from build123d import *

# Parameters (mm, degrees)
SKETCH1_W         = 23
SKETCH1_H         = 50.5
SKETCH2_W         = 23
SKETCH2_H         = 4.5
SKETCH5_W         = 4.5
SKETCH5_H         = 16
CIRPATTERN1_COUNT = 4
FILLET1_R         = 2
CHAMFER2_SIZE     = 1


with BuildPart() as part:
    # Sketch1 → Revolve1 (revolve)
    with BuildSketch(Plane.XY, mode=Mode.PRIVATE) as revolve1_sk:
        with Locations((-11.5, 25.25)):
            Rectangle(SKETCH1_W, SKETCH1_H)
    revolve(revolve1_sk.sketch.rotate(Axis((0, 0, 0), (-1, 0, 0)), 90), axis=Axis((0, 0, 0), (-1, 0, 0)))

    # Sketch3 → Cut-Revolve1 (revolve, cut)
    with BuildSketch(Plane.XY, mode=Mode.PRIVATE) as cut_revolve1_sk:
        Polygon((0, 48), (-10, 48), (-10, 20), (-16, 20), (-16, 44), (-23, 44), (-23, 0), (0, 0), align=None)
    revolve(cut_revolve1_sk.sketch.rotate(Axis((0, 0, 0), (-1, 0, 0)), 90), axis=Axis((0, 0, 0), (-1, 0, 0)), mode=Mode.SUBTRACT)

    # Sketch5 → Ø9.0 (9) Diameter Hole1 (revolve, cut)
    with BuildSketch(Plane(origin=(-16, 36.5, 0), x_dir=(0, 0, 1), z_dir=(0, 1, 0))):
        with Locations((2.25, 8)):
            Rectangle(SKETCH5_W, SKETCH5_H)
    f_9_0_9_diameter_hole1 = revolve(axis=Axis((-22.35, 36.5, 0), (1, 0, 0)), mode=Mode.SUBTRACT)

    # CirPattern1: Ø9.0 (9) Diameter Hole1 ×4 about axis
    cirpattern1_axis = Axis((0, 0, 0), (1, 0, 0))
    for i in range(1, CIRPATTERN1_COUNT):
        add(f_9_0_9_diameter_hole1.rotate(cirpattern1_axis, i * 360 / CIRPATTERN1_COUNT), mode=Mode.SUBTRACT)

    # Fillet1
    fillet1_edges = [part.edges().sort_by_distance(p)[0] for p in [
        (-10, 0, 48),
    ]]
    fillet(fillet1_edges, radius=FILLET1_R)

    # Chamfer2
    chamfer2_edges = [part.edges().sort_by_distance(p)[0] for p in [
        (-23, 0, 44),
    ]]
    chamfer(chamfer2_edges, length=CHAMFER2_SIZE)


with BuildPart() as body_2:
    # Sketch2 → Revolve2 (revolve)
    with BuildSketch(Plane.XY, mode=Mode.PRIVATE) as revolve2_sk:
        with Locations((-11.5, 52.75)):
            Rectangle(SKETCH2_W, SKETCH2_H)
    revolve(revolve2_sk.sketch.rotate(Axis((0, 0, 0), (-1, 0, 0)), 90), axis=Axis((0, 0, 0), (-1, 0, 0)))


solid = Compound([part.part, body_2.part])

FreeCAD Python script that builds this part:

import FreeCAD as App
import Part
import Sketcher


def edges_at(feature, points):
    """Names of the edges that pass closest to the given points."""
    edges = feature.Shape.Edges
    near = lambda p: min(range(len(edges)), key=lambda i: edges[i].distToShape(Part.Vertex(*p))[0])
    return sorted({f"Edge{near(p) + 1}" for p in points})

doc = App.newDocument("Part")
body = doc.addObject("PartDesign::Body", "Body")

sketch1 = doc.addObject("Sketcher::SketchObject", "Sketch")
body.addObject(sketch1)
sketch1.AttachmentSupport = (doc.XY_Plane, [""])
sketch1.MapMode = "FlatFace"
sketch1.addGeometry([
    Part.LineSegment(App.Vector(-23, 50, 0), App.Vector(-23, 0, 0)),
    Part.LineSegment(App.Vector(-23, 0, 0), App.Vector(0, 0, 0)),
    Part.LineSegment(App.Vector(0, 0, 0), App.Vector(0, 50, 0)),
    Part.LineSegment(App.Vector(0, 50, 0), App.Vector(-23, 50, 0)),
], False)
sketch1.addConstraint([
    Sketcher.Constraint("Coincident", 0, 2, 1, 1),
    Sketcher.Constraint("Coincident", 1, 2, 2, 1),
    Sketcher.Constraint("Coincident", 2, 2, 3, 1),
    Sketcher.Constraint("Coincident", 3, 2, 0, 1),
    Sketcher.Constraint("Vertical", 0),
    Sketcher.Constraint("Horizontal", 1),
    Sketcher.Constraint("Vertical", 2),
    Sketcher.Constraint("Horizontal", 3),
    Sketcher.Constraint("Coincident", 1, 2, -1, 1),
    Sketcher.Constraint("DistanceX", 1, 1, 1, 2, 23.0),
    Sketcher.Constraint("DistanceY", 0, 2, 0, 1, 50.5),
])
revolution = doc.addObject("PartDesign::Revolution", "Revolution")
body.addObject(revolution)
revolution.Profile = sketch1
revolution.ReferenceAxis = (sketch1, ["H_Axis"])
revolution.Angle = 360

sketch2 = doc.addObject("Sketcher::SketchObject", "Sketch001")
body.addObject(sketch2)
sketch2.AttachmentSupport = (doc.XY_Plane, [""])
sketch2.MapMode = "FlatFace"
sketch2.addGeometry([
    Part.LineSegment(App.Vector(0, 48, 0), App.Vector(-10, 48, 0)),
    Part.LineSegment(App.Vector(-10, 48, 0), App.Vector(-10, 20, 0)),
    Part.LineSegment(App.Vector(-10, 20, 0), App.Vector(-16, 20, 0)),
    Part.LineSegment(App.Vector(-16, 20, 0), App.Vector(-16, 44, 0)),
    Part.LineSegment(App.Vector(-16, 44, 0), App.Vector(-23, 44, 0)),
    Part.LineSegment(App.Vector(-23, 44, 0), App.Vector(-23, 0, 0)),
    Part.LineSegment(App.Vector(-23, 0, 0), App.Vector(0, 0, 0)),
    Part.LineSegment(App.Vector(0, 0, 0), App.Vector(0, 48, 0)),
], False)
sketch2.addConstraint([
    Sketcher.Constraint("Coincident", 0, 2, 1, 1),
    Sketcher.Constraint("Coincident", 1, 2, 2, 1),
    Sketcher.Constraint("Coincident", 2, 2, 3, 1),
    Sketcher.Constraint("Coincident", 3, 2, 4, 1),
    Sketcher.Constraint("Coincident", 4, 2, 5, 1),
    Sketcher.Constraint("Coincident", 5, 2, 6, 1),
    Sketcher.Constraint("Coincident", 6, 2, 7, 1),
    Sketcher.Constraint("Coincident", 7, 2, 0, 1),
    Sketcher.Constraint("Horizontal", 0),
    Sketcher.Constraint("Vertical", 1),
    Sketcher.Constraint("Horizontal", 2),
    Sketcher.Constraint("Vertical", 3),
    Sketcher.Constraint("Horizontal", 4),
    Sketcher.Constraint("Vertical", 5),
    Sketcher.Constraint("Horizontal", 6),
    Sketcher.Constraint("Vertical", 7),
    Sketcher.Constraint("Coincident", 6, 2, -1, 1),
    Sketcher.Constraint("DistanceX", 0, 2, 0, 1, 10.0),
    Sketcher.Constraint("DistanceX", 2, 2, 2, 1, 6.0),
    Sketcher.Constraint("DistanceX", 4, 2, 4, 1, 7.0),
    Sketcher.Constraint("DistanceY", 1, 2, 1, 1, 28.0),
    Sketcher.Constraint("DistanceY", 3, 1, 3, 2, 24.0),
    Sketcher.Constraint("DistanceY", 5, 2, 5, 1, 44.0),
])
groove = doc.addObject("PartDesign::Groove", "Groove")
body.addObject(groove)
groove.Profile = sketch2
groove.ReferenceAxis = (sketch2, ["H_Axis"])
groove.Angle = 360

sketch3 = doc.addObject("Sketcher::SketchObject", "Sketch002")
body.addObject(sketch3)
sketch3.AttachmentSupport = (doc.XZ_Plane, [""])
sketch3.MapMode = "FlatFace"
sketch3.AttachmentOffset = App.Placement(App.Vector(0, 0, -36.5), App.Rotation())
sketch3.addGeometry([
    Part.LineSegment(App.Vector(0, 0, 0), App.Vector(-16, 0, 0)),
    Part.LineSegment(App.Vector(-16, 0, 0), App.Vector(-16, 4.5, 0)),
    Part.LineSegment(App.Vector(-16, 4.5, 0), App.Vector(0, 4.5, 0)),
    Part.LineSegment(App.Vector(0, 4.5, 0), App.Vector(0, 0, 0)),
], False)
sketch3.addConstraint([
    Sketcher.Constraint("Coincident", 0, 2, 1, 1),
    Sketcher.Constraint("Coincident", 1, 2, 2, 1),
    Sketcher.Constraint("Coincident", 2, 2, 3, 1),
    Sketcher.Constraint("Coincident", 3, 2, 0, 1),
    Sketcher.Constraint("Horizontal", 0),
    Sketcher.Constraint("Vertical", 1),
    Sketcher.Constraint("Horizontal", 2),
    Sketcher.Constraint("Vertical", 3),
    Sketcher.Constraint("Coincident", 3, 2, -1, 1),
    Sketcher.Constraint("DistanceX", 0, 2, 0, 1, 16.0),
    Sketcher.Constraint("DistanceY", 1, 1, 1, 2, 4.5),
])
groove2 = doc.addObject("PartDesign::Groove", "Groove001")
body.addObject(groove2)
groove2.Profile = sketch3
groove2.ReferenceAxis = (sketch3, ["H_Axis"])
groove2.Angle = 360
doc.recompute()

polarpattern = doc.addObject("PartDesign::PolarPattern", "PolarPattern")
body.addObject(polarpattern)
polarpattern.Originals = [groove2]
polarpattern.Axis = (doc.X_Axis, [""])
polarpattern.Angle = 360
polarpattern.Occurrences = 4
body.Tip = polarpattern
doc.recompute()

fillet = doc.addObject("PartDesign::Fillet", "Fillet")
body.addObject(fillet)
fillet.Base = (polarpattern, edges_at(polarpattern, [(-10, 0, 48)]))
fillet.Radius = 2
doc.recompute()

chamfer = doc.addObject("PartDesign::Chamfer", "Chamfer")
body.addObject(chamfer)
chamfer.Base = (fillet, edges_at(fillet, [(-23, 0, 44)]))
chamfer.Size = 1
body2 = doc.addObject("PartDesign::Body", "Body001")

sketch4 = doc.addObject("Sketcher::SketchObject", "Sketch003")
body2.addObject(sketch4)
sketch4.AttachmentSupport = (doc.getObject("XY_Plane001"), [""])
sketch4.MapMode = "FlatFace"
sketch4.addGeometry([
    Part.LineSegment(App.Vector(-23, 55, 0), App.Vector(-23, 50.5, 0)),
    Part.LineSegment(App.Vector(-23, 50.5, 0), App.Vector(0, 50.5, 0)),
    Part.LineSegment(App.Vector(0, 50.5, 0), App.Vector(0, 55, 0)),
    Part.LineSegment(App.Vector(0, 55, 0), App.Vector(-23, 55, 0)),
], False)
sketch4.addConstraint([
    Sketcher.Constraint("Coincident", 0, 2, 1, 1),
    Sketcher.Constraint("Coincident", 1, 2, 2, 1),
    Sketcher.Constraint("Coincident", 2, 2, 3, 1),
    Sketcher.Constraint("Coincident", 3, 2, 0, 1),
    Sketcher.Constraint("Vertical", 0),
    Sketcher.Constraint("Horizontal", 1),
    Sketcher.Constraint("Vertical", 2),
    Sketcher.Constraint("Horizontal", 3),
    Sketcher.Constraint("PointOnObject", 1, 2, -2),
    Sketcher.Constraint("DistanceX", 1, 1, 1, 2, 23.0),
    Sketcher.Constraint("DistanceY", 0, 2, 0, 1, 4.5),
    Sketcher.Constraint("DistanceY", -1, 1, 2, 2, 55.0),
])
revolution2 = doc.addObject("PartDesign::Revolution", "Revolution001")
body2.addObject(revolution2)
revolution2.Profile = sketch4
revolution2.ReferenceAxis = (sketch4, ["H_Axis"])
revolution2.Angle = 360

doc.recompute()
